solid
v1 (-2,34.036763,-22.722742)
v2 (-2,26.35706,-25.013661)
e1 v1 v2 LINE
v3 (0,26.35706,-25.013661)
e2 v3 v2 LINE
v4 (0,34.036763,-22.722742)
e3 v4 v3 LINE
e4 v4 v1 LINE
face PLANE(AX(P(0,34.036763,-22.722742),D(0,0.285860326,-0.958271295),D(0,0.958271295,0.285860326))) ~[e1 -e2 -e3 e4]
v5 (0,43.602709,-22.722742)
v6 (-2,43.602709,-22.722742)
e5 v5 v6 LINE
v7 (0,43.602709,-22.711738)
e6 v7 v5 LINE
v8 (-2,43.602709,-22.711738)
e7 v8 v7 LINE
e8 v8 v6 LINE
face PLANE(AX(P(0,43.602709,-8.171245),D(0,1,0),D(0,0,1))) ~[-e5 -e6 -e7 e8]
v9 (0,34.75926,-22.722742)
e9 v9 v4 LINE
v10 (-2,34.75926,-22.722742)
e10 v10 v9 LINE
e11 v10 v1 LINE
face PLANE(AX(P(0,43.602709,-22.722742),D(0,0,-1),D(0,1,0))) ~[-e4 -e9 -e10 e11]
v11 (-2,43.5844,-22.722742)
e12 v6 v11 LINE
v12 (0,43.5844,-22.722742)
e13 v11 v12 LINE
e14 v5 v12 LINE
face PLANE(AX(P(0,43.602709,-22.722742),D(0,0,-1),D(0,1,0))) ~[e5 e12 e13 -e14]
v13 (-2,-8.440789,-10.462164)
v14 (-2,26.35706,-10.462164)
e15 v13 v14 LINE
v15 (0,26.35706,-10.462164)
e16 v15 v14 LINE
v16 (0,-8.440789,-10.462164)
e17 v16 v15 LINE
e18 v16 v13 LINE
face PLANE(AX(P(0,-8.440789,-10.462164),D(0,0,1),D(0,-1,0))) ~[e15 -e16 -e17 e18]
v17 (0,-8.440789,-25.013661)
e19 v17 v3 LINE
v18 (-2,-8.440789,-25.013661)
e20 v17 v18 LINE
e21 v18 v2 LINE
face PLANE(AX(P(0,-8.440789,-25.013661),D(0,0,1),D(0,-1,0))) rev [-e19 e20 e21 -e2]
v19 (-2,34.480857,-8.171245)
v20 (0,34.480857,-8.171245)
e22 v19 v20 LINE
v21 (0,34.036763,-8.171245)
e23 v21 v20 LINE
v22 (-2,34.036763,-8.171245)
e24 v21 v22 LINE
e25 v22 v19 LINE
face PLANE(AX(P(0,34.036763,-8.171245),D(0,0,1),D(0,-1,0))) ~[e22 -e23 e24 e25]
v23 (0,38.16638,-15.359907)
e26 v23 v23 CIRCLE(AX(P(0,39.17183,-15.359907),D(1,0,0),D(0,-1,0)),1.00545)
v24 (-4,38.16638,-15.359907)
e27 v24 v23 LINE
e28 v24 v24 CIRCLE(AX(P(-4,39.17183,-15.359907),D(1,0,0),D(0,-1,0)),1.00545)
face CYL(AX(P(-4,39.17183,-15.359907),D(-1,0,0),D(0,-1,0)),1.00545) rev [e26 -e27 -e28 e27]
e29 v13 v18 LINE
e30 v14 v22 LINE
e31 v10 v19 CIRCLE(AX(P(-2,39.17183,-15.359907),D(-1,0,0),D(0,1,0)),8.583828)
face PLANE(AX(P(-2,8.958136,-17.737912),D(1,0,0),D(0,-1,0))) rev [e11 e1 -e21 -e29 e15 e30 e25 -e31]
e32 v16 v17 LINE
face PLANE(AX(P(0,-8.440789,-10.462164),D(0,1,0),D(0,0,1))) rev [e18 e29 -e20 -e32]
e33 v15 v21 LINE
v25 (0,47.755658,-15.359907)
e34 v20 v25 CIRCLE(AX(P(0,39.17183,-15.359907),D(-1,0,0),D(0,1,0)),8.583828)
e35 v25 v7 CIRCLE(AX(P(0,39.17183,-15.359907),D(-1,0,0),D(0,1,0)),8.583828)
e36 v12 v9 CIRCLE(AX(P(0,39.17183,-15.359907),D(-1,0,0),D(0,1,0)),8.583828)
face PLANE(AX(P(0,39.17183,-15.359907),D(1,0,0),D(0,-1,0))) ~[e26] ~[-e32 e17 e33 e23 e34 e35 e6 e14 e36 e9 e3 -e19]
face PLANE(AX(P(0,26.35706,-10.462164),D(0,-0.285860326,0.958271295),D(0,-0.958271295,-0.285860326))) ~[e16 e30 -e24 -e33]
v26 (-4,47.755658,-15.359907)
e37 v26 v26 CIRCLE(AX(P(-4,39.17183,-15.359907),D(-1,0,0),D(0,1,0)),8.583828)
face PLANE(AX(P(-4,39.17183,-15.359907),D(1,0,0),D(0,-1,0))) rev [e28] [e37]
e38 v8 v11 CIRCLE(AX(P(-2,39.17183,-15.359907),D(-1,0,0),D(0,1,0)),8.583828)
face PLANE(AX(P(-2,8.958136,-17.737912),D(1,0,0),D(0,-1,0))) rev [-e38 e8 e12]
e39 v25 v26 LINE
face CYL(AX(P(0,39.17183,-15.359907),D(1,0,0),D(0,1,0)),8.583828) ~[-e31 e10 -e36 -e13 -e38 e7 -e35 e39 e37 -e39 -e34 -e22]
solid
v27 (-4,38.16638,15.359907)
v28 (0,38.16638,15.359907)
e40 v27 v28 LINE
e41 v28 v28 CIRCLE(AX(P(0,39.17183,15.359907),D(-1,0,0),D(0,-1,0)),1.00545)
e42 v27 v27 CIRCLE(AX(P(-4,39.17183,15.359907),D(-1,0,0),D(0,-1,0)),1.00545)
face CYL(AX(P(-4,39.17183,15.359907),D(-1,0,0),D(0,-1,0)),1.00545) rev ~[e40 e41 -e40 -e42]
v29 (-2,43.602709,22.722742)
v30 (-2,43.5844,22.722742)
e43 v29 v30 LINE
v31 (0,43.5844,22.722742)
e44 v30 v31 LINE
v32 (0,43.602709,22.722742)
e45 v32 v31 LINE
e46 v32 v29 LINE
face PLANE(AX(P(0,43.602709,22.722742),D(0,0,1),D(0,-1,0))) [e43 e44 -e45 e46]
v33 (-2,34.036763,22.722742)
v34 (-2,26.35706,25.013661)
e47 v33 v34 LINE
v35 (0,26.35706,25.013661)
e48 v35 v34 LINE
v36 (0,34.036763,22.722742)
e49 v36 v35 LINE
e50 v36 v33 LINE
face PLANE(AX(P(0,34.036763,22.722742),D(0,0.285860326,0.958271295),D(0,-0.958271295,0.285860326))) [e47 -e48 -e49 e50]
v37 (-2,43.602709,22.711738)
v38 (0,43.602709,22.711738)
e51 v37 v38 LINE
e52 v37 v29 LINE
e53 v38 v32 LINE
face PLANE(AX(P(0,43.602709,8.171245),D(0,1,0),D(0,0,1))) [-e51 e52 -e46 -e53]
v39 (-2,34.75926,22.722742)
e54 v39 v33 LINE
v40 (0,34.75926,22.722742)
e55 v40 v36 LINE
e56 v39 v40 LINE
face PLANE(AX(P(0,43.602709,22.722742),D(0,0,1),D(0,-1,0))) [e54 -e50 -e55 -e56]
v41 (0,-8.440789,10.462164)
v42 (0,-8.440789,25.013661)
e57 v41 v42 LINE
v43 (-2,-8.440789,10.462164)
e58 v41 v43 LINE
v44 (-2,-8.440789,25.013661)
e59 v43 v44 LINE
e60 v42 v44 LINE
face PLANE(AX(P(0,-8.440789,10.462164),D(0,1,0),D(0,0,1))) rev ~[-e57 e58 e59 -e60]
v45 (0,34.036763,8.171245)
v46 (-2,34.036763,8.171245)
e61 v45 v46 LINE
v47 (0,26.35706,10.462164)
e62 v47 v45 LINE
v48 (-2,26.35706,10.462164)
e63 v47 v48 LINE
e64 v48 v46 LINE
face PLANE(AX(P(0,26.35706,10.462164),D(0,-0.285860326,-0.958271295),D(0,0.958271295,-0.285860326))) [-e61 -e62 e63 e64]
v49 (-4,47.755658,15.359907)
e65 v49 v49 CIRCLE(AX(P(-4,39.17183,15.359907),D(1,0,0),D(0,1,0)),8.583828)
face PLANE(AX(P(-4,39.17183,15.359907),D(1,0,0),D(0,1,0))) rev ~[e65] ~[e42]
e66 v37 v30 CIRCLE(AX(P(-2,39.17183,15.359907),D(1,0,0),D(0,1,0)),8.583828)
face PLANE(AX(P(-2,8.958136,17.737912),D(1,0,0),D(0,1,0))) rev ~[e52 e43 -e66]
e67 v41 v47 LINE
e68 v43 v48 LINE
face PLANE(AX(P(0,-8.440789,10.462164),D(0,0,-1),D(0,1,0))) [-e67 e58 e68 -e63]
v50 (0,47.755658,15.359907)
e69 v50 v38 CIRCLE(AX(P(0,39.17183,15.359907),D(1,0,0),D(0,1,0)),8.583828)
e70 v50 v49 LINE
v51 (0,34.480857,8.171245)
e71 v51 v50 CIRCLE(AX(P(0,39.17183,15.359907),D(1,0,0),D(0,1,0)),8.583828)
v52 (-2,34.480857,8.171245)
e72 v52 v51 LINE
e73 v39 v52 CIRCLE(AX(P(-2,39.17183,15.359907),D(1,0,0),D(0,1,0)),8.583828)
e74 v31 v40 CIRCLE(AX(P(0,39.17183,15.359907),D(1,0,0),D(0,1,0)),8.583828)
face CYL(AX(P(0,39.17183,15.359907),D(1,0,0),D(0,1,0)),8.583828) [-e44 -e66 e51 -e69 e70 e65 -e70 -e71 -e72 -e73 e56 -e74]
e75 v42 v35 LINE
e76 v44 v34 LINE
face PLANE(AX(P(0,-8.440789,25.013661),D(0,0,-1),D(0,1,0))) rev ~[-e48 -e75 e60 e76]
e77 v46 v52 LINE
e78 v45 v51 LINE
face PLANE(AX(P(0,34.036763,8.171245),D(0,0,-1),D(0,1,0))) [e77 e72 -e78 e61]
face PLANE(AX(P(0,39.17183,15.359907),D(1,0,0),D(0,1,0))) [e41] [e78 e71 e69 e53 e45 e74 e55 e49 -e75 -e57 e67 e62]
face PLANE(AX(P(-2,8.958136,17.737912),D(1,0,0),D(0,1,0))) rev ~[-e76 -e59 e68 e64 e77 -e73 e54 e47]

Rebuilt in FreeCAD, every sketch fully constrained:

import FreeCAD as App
import Part
import Sketcher

V = App.Vector

doc = App.newDocument("Part")
body = doc.addObject("PartDesign::Body", "Body")

# Sketch on YZ plane
sketch1 = doc.addObject("Sketcher::SketchObject", "Sketch")
body.addObject(sketch1)
sketch1.AttachmentSupport = (doc.YZ_Plane, [""])
sketch1.MapMode = "FlatFace"
sketch1.addGeometry([
    Part.LineSegment(V(-8, 25, 0), V(-8, 10, 0)),
    Part.LineSegment(V(-8, 10, 0), V(26, 10, 0)),
    Part.LineSegment(V(26, 10, 0), V(26, 25, 0)),
    Part.LineSegment(V(26, 25, 0), V(-8, 25, 0)),
], False)
sketch1.addConstraint([
    Sketcher.Constraint("Coincident", 0, 2, 1, 1),
    Sketcher.Constraint("Coincident", 1, 2, 2, 1),
    Sketcher.Constraint("Coincident", 2, 2, 3, 1),
    Sketcher.Constraint("Coincident", 3, 2, 0, 1),
    Sketcher.Constraint("Vertical", 0),
    Sketcher.Constraint("Horizontal", 1),
    Sketcher.Constraint("Vertical", 2),
    Sketcher.Constraint("Horizontal", 3),
    Sketcher.Constraint("DistanceX", 1, 1, 1, 2, 34.797849),
    Sketcher.Constraint("DistanceY", 0, 2, 0, 1, 14.551497),
    Sketcher.Constraint("DistanceX", 0, 2, -1, 1, 8.440789),
    Sketcher.Constraint("DistanceY", -1, 1, 2, 2, 25.013661),
])
pad1 = doc.addObject("PartDesign::Pad", "Pad")
body.addObject(pad1)
pad1.Profile = sketch1
pad1.Length = 2
pad1.Reversed = True

# Sketch on YZ plane
sketch2 = doc.addObject("Sketcher::SketchObject", "Sketch001")
body.addObject(sketch2)
sketch2.AttachmentSupport = (doc.YZ_Plane, [""])
sketch2.MapMode = "FlatFace"
sketch2.addGeometry([
    Part.LineSegment(V(-8, 25, 0), V(-8, 10, 0)),  # 0
    Part.LineSegment(V(-8, 10, 0), V(26, 10, 0)),  # 1
    Part.LineSegment(V(26, 10, 0), V(34, 8, 0)),  # 2
    Part.LineSegment(V(34, 8, 0), V(44, 8, 0)),  # 3
    Part.LineSegment(V(44, 8, 0), V(44, 23, 0)),  # 4
    Part.LineSegment(V(44, 23, 0), V(34, 23, 0)),  # 5
    Part.LineSegment(V(34, 23, 0), V(26, 25, 0)),  # 6
    Part.LineSegment(V(26, 25, 0), V(-8, 25, 0)),  # 7
], False)
sketch2.addConstraint([
    Sketcher.Constraint("Coincident", 0, 2, 1, 1),
    Sketcher.Constraint("Coincident", 1, 2, 2, 1),
    Sketcher.Constraint("Coincident", 2, 2, 3, 1),
    Sketcher.Constraint("Coincident", 3, 2, 4, 1),
    Sketcher.Constraint("Coincident", 4, 2, 5, 1),
    Sketcher.Constraint("Coincident", 5, 2, 6, 1),
    Sketcher.Constraint("Coincident", 6, 2, 7, 1),
    Sketcher.Constraint("Coincident", 7, 2, 0, 1),
    Sketcher.Constraint("Vertical", 0),
    Sketcher.Constraint("Horizontal", 1),
    Sketcher.Constraint("Horizontal", 3),
    Sketcher.Constraint("Vertical", 4),
    Sketcher.Constraint("Horizontal", 5),
    Sketcher.Constraint("Horizontal", 7),
    Sketcher.Constraint("Parallel", 2, 6),
    Sketcher.Constraint("Vertical", 2, 2, 5, 2),
    Sketcher.Constraint("Vertical", 1, 2, 6, 2),
    Sketcher.Constraint("DistanceX", 1, 1, 1, 2, 34.797849),
    Sketcher.Constraint("Distance", 2, 8.014122),
    Sketcher.Constraint("DistanceX", 3, 1, 3, 2, 9.565946),
    Sketcher.Constraint("DistanceY", 0, 2, 0, 1, 14.551497),
    Sketcher.Constraint("DistanceX", 0, 2, -1, 1, 8.440789),
    Sketcher.Constraint("DistanceX", -1, 1, 3, 2, 43.602709),
    Sketcher.Constraint("DistanceY", -1, 1, 4, 2, 22.722742),
])
pad2 = doc.addObject("PartDesign::Pad", "Pad001")
body.addObject(pad2)
pad2.Profile = sketch2
pad2.Length = 2
pad2.Reversed = True

# Sketch on YZ plane
sketch3 = doc.addObject("Sketcher::SketchObject", "Sketch002")
body.addObject(sketch3)
sketch3.AttachmentSupport = (doc.YZ_Plane, [""])
sketch3.MapMode = "FlatFace"
sketch3.addGeometry(Part.Circle(V(39, 15, 0), V(0, 0, 1), 9), False)
sketch3.addConstraint([
    Sketcher.Constraint("Diameter", 0, 17.167656),
    Sketcher.Constraint("DistanceX", -1, 1, 0, 3, 39.17183),
    Sketcher.Constraint("DistanceY", -1, 1, 0, 3, 15.359907),
])
pad3 = doc.addObject("PartDesign::Pad", "Pad002")
body.addObject(pad3)
pad3.Profile = sketch3
pad3.Length = 4
pad3.Reversed = True

# Sketch on YZ plane
sketch4 = doc.addObject("Sketcher::SketchObject", "Sketch003")
body.addObject(sketch4)
sketch4.AttachmentSupport = (doc.YZ_Plane, [""])
sketch4.MapMode = "FlatFace"
sketch4.AttachmentOffset = App.Placement(V(0, 0, -4), App.Rotation())
sketch4.addGeometry(Part.Circle(V(39.2, 15.4, 0), V(0, 0, 1), 1), False)
sketch4.addConstraint([
    Sketcher.Constraint("Diameter", 0, 2.0109),
    Sketcher.Constraint("DistanceX", -1, 1, 0, 3, 39.17183),
    Sketcher.Constraint("DistanceY", -1, 1, 0, 3, 15.359907),
])
pocket1 = doc.addObject("PartDesign::Pocket", "Pocket")
body.addObject(pocket1)
pocket1.Profile = sketch4
pocket1.Length = 4
pocket1.Reversed = True
body2 = doc.addObject("PartDesign::Body", "Body001")
doc.recompute()

mirroring = doc.addObject("Part::Mirroring", "Mirroring")
mirroring.Source = body
mirroring.Base = V(0, 0, 0)
mirroring.Normal = V(0, 0, 1)
body2.BaseFeature = mirroring
doc.recompute()
mirroring.Visibility = False

doc.recompute()
